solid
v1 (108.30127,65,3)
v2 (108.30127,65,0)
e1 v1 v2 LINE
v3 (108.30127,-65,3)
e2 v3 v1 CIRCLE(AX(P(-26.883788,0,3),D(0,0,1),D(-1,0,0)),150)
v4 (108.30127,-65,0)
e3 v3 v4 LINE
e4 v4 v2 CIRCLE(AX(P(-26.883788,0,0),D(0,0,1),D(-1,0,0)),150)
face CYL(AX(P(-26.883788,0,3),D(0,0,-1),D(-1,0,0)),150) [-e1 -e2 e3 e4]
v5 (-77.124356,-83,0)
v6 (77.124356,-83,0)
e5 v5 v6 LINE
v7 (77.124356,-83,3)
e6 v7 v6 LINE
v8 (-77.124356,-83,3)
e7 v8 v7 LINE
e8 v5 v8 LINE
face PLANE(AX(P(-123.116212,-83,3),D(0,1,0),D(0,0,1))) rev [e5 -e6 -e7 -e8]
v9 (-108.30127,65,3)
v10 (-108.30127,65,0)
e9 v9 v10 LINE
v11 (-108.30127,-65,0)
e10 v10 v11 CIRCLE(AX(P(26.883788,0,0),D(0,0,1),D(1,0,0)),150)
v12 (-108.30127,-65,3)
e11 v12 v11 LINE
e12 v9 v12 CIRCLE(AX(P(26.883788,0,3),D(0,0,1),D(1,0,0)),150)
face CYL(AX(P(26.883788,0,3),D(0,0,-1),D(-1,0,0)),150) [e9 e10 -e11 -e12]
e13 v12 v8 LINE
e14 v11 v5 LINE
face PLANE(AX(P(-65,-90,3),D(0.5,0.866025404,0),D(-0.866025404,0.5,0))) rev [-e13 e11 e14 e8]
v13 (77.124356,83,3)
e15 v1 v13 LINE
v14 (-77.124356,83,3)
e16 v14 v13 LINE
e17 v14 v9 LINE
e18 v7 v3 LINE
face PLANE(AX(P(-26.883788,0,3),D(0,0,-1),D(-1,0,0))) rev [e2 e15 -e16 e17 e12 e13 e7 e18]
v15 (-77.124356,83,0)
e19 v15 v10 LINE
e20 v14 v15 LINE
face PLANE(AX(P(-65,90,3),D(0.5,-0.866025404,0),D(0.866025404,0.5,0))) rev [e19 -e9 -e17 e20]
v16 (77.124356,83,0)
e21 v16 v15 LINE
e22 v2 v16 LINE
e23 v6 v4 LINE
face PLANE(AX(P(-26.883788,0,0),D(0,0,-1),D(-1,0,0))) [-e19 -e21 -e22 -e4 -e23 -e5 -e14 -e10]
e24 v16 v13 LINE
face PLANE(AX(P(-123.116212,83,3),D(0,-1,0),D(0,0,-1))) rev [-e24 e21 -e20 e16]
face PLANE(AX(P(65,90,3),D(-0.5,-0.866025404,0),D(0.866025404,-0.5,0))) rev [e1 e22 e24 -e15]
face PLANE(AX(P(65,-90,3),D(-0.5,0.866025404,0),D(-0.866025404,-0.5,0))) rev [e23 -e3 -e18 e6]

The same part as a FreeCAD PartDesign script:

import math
import FreeCAD as App
import Part
import Sketcher
from FreeCAD import Vector
Q = App.Units.Quantity


def add_polygon(sketch, points):
    """Adds a closed chain of lines whose ends are joined by coincident constraints."""
    first, n = sketch.GeometryCount, len(points)
    for a, b in zip(points, points[1:] + points[:1]):
        sketch.addGeometry(Part.LineSegment(App.Vector(*a, 0), App.Vector(*b, 0)), False)
    for i in range(n):
        sketch.addConstraint(Sketcher.Constraint("Coincident", first + i, 2, first + (i + 1) % n, 1))

doc = App.newDocument("Part")
body = doc.addObject("PartDesign::Body", "Body")

sketch1 = doc.addObject("Sketcher::SketchObject", "Sketch")
body.addObject(sketch1)
sketch1.AttachmentSupport = (doc.XY_Plane, [""])
sketch1.MapMode = "FlatFace"
sketch1.addGeometry(Part.LineSegment(Vector(-65, 90, 0), Vector(-108, 65, 0)), False)
sketch1.addGeometry(Part.ArcOfCircle(Part.Circle(Vector(27, 0, 0), Vector(0, 0, 1), 150), math.radians(154), math.radians(206)), False)
sketch1.addGeometry(Part.LineSegment(Vector(-108, -65, 0), Vector(-65, -90, 0)), False)
sketch1.addGeometry(Part.LineSegment(Vector(-65, -90, 0), Vector(65, -90, 0)), False)
sketch1.addGeometry(Part.LineSegment(Vector(65, -90, 0), Vector(108, -65, 0)), False)
sketch1.addGeometry(Part.ArcOfCircle(Part.Circle(Vector(-27, 0, 0), Vector(0, 0, 1), 150), math.radians(-26), math.radians(26)), False)
sketch1.addGeometry(Part.LineSegment(Vector(108, 65, 0), Vector(65, 90, 0)), False)
sketch1.addGeometry(Part.LineSegment(Vector(65, 90, 0), Vector(-65, 90, 0)), False)
sketch1.addConstraint(Sketcher.Constraint("Coincident", 0, 2, 1, 1))
sketch1.addConstraint(Sketcher.Constraint("Coincident", 1, 2, 2, 1))
sketch1.addConstraint(Sketcher.Constraint("Coincident", 2, 2, 3, 1))
sketch1.addConstraint(Sketcher.Constraint("Coincident", 3, 2, 4, 1))
sketch1.addConstraint(Sketcher.Constraint("Coincident", 4, 2, 5, 1))
sketch1.addConstraint(Sketcher.Constraint("Coincident", 5, 2, 6, 1))
sketch1.addConstraint(Sketcher.Constraint("Coincident", 6, 2, 7, 1))
sketch1.addConstraint(Sketcher.Constraint("Coincident", 7, 2, 0, 1))
sketch1.addConstraint(Sketcher.Constraint("Horizontal", 3))
sketch1.addConstraint(Sketcher.Constraint("Horizontal", 7))
sketch1.addConstraint(Sketcher.Constraint("Equal", 1, 5))
sketch1.addConstraint(Sketcher.Constraint("Symmetric", 1, 3, 5, 3, -1, 1))
sketch1.addConstraint(Sketcher.Constraint("Symmetric", 2, 2, 6, 2, -1, 1))
sketch1.addConstraint(Sketcher.Constraint("Symmetric", 1, 2, 4, 2, -2))
sketch1.addConstraint(Sketcher.Constraint("Parallel", 0, 4))
sketch1.addConstraint(Sketcher.Constraint("Parallel", 2, 6))
sketch1.addConstraint(Sketcher.Constraint("Horizontal", 0, 2, 5, 2))
sketch1.addConstraint(Sketcher.Constraint("Vertical", 3, 2, 6, 2))
sketch1.addConstraint(Sketcher.Constraint("Radius", 1, Q("150 mm")))
sketch1.addConstraint(Sketcher.Constraint("DistanceX", 3, 1, 3, 2, Q("130 mm")))
sketch1.addConstraint(Sketcher.Constraint("Angle", 0, Q("-150 deg")))
sketch1.addConstraint(Sketcher.Constraint("Distance", 0, Q("50 mm")))
sketch1.addConstraint(Sketcher.Constraint("DistanceY", -1, 1, 0, 2, Q("65 mm")))
pad1 = doc.addObject("PartDesign::Pad", "Pad")
body.addObject(pad1)
pad1.Profile = sketch1
pad1.Length = 3

sketch2 = doc.addObject("Sketcher::SketchObject", "Sketch001")
body.addObject(sketch2)
sketch2.AttachmentSupport = (doc.YZ_Plane, [""])
sketch2.MapMode = "FlatFace"
add_polygon(sketch2, [(90, 3), (83, 3), (83, 0), (90, 0)])
add_polygon(sketch2, [(-83, 3), (-90, 3), (-90, 0), (-83, 0)])
sketch2.addConstraint(Sketcher.Constraint("Horizontal", 0))
sketch2.addConstraint(Sketcher.Constraint("Vertical", 1))
sketch2.addConstraint(Sketcher.Constraint("Horizontal", 2))
sketch2.addConstraint(Sketcher.Constraint("Vertical", 3))
sketch2.addConstraint(Sketcher.Constraint("Horizontal", 4))
sketch2.addConstraint(Sketcher.Constraint("Vertical", 5))
sketch2.addConstraint(Sketcher.Constraint("Horizontal", 6))
sketch2.addConstraint(Sketcher.Constraint("Vertical", 7))
sketch2.addConstraint(Sketcher.Constraint("Symmetric", 2, 2, 5, 2, -1, 1))
sketch2.addConstraint(Sketcher.Constraint("Symmetric", 1, 2, 6, 2, -2))
sketch2.addConstraint(Sketcher.Constraint("Horizontal", 3, 2, 4, 2))
sketch2.addConstraint(Sketcher.Constraint("DistanceX", 0, 2, 0, 1, Q("7 mm")))
sketch2.addConstraint(Sketcher.Constraint("DistanceY", 1, 2, 1, 1, Q("3 mm")))
sketch2.addConstraint(Sketcher.Constraint("DistanceX", -1, 1, 0, 2, Q("83 mm")))
pocket1 = doc.addObject("PartDesign::Pocket", "Pocket")
body.addObject(pocket1)
pocket1.Profile = sketch2
pocket1.Type = "ThroughAll"
pocket1.Midplane = True

doc.recompute()
